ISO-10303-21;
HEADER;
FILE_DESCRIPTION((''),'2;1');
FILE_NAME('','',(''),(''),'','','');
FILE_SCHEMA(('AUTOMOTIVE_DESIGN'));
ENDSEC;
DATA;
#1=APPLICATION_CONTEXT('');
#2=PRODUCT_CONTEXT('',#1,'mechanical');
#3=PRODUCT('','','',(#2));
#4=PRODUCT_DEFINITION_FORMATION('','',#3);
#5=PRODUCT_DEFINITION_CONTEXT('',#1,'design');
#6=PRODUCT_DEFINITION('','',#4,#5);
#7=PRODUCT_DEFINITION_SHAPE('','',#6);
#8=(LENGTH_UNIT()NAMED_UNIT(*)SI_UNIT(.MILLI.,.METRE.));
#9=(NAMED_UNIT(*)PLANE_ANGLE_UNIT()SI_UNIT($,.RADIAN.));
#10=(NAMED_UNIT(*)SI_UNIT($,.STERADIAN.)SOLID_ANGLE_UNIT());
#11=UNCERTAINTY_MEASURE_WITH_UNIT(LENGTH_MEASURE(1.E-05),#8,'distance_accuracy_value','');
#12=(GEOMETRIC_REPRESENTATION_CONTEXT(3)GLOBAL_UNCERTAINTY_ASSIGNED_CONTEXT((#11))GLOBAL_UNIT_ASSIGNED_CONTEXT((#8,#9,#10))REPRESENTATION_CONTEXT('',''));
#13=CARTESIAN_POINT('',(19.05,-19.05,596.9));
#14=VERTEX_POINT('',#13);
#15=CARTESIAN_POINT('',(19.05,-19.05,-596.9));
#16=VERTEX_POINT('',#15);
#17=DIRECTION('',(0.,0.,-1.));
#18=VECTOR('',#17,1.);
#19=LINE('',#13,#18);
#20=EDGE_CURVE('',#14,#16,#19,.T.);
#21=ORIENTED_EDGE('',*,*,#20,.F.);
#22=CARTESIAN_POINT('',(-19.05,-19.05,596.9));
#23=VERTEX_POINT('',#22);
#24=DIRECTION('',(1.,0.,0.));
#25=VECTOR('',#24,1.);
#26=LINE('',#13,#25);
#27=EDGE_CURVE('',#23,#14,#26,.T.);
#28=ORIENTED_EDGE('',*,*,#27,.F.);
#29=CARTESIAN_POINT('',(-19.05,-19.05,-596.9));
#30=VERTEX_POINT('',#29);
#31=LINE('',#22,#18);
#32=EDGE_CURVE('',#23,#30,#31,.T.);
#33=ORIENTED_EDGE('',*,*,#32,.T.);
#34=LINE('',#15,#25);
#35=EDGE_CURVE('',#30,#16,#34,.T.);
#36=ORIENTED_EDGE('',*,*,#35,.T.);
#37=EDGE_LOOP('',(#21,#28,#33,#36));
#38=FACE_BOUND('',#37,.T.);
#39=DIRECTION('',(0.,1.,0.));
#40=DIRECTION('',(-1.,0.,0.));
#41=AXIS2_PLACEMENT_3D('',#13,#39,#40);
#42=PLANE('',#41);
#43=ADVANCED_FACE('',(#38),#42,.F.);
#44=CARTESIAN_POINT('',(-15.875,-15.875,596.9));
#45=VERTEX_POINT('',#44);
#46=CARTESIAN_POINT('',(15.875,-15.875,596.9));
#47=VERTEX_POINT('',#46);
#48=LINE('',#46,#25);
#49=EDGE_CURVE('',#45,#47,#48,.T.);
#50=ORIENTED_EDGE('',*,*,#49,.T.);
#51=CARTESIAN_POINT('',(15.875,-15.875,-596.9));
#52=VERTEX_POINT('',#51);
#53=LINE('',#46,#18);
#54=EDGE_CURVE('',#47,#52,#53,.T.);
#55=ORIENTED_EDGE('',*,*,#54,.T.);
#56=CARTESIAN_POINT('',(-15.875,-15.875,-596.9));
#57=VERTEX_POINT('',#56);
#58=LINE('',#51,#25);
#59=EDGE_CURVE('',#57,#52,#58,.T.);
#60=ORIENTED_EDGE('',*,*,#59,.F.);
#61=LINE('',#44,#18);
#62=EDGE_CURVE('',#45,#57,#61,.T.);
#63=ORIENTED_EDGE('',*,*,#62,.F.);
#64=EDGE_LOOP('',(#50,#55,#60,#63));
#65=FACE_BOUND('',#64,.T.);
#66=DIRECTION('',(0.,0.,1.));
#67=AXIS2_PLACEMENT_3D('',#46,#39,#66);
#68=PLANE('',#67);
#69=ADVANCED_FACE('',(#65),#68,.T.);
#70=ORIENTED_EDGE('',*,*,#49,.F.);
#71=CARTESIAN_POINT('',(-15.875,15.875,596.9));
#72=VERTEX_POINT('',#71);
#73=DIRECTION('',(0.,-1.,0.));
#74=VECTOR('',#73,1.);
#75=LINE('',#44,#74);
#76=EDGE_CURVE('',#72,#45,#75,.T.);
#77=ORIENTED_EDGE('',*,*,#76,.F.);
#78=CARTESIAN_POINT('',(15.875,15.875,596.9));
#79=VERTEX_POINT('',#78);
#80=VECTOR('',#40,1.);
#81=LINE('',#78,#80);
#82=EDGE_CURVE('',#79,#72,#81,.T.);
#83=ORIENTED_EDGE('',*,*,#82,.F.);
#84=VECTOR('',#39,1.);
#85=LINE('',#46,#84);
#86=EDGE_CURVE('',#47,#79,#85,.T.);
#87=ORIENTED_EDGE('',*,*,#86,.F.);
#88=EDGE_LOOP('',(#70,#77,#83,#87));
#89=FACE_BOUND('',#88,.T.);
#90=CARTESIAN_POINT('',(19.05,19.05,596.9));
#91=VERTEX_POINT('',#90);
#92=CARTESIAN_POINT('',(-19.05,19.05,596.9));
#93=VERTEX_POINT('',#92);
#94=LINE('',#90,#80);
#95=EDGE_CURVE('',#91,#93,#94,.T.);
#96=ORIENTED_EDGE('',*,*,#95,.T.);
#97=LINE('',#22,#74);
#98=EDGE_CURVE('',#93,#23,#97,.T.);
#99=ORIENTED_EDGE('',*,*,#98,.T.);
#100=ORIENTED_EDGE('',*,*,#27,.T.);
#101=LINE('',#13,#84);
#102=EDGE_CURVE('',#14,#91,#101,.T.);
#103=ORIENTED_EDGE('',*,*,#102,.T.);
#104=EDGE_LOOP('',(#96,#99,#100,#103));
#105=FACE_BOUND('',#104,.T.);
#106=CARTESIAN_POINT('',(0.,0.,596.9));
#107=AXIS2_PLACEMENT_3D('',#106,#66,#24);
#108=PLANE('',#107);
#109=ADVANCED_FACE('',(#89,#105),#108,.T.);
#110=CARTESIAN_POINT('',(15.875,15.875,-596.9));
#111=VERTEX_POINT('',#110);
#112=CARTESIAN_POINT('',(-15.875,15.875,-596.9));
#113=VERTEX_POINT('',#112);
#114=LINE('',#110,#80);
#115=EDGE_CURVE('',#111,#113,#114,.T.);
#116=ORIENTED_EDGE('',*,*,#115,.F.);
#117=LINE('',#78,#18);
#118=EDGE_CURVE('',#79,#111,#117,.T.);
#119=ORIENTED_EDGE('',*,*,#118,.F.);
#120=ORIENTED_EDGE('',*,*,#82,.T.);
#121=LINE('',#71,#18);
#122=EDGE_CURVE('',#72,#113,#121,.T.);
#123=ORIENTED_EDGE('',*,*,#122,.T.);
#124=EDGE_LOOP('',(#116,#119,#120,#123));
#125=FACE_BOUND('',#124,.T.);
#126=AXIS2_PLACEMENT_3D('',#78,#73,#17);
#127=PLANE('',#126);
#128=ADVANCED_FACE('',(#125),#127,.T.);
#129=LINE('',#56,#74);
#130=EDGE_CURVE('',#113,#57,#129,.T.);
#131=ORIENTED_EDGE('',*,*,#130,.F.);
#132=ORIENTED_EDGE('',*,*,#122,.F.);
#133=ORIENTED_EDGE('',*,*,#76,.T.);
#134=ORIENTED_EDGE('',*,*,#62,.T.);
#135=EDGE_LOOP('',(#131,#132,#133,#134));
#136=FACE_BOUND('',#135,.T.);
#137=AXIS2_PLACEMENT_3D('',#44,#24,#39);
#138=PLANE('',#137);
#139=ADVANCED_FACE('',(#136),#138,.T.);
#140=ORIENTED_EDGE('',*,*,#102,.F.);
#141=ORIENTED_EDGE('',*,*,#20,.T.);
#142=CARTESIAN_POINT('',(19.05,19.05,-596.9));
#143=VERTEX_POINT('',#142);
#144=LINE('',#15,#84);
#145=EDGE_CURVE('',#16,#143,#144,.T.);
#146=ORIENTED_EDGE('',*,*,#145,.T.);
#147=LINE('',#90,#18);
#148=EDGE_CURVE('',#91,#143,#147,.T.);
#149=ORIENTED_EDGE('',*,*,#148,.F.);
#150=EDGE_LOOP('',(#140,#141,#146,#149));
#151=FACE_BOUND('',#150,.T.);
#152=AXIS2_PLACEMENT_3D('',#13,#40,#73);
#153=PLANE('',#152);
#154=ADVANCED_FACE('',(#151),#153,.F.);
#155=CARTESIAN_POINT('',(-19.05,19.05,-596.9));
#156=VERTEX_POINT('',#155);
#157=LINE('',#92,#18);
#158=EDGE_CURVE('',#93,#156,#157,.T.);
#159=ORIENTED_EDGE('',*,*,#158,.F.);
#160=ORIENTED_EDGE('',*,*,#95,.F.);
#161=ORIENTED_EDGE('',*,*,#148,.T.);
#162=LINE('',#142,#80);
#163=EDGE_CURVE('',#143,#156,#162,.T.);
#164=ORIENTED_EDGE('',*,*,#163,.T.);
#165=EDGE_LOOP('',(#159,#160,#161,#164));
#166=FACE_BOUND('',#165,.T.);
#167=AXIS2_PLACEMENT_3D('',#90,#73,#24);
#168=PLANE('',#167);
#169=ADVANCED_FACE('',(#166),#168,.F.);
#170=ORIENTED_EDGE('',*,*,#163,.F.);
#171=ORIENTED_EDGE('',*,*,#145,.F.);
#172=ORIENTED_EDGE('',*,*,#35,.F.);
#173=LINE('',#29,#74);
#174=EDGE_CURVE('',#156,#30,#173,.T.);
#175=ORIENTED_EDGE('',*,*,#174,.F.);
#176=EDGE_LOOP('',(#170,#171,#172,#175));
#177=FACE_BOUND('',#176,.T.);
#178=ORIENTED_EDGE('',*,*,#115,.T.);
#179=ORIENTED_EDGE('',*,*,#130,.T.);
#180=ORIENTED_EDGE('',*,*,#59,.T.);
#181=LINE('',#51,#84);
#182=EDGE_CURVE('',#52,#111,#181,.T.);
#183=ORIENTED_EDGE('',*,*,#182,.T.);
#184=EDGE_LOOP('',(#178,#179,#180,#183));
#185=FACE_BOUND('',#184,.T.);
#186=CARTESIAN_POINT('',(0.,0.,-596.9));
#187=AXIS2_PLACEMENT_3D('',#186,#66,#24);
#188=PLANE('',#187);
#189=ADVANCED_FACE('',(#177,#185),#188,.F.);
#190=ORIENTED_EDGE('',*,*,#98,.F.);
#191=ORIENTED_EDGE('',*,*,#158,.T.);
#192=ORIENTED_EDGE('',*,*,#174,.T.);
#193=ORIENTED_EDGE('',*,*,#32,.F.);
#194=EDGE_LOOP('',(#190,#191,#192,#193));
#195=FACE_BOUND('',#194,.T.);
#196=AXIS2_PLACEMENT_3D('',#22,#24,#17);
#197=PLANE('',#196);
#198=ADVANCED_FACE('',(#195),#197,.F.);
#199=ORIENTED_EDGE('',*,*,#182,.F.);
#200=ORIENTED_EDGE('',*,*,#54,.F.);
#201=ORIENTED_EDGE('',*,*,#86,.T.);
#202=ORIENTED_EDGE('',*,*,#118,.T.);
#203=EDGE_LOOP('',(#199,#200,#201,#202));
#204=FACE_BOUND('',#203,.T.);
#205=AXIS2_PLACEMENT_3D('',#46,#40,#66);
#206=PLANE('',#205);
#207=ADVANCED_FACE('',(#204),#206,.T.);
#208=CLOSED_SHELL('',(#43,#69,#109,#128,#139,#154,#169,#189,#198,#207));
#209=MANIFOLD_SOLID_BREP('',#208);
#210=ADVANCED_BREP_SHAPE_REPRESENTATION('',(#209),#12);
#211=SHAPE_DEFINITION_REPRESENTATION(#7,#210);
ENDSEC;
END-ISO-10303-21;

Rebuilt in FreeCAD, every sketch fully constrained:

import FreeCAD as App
import Part
import Sketcher

V = App.Vector
Q = App.Units.Quantity

doc = App.newDocument("Part")
body = doc.addObject("PartDesign::Body", "Body")

sketch1 = doc.addObject("Sketcher::SketchObject", "Sketch")
body.addObject(sketch1)
sketch1.AttachmentSupport = (doc.XY_Plane, [""])
sketch1.MapMode = "FlatFace"
sketch1.addGeometry([
    Part.LineSegment(V(-19, 19, 0), V(-19, -19, 0)),
    Part.LineSegment(V(-19, -19, 0), V(19, -19, 0)),
    Part.LineSegment(V(19, -19, 0), V(19, 19, 0)),
    Part.LineSegment(V(19, 19, 0), V(-19, 19, 0)),
    Part.LineSegment(V(16, -16, 0), V(-16, -16, 0)),
    Part.LineSegment(V(-16, -16, 0), V(-16, 16, 0)),
    Part.LineSegment(V(-16, 16, 0), V(16, 16, 0)),
    Part.LineSegment(V(16, 16, 0), V(16, -16, 0)),
], False)
sketch1.addConstraint([
    Sketcher.Constraint("Coincident", 0, 2, 1, 1),
    Sketcher.Constraint("Coincident", 1, 2, 2, 1),
    Sketcher.Constraint("Coincident", 2, 2, 3, 1),
    Sketcher.Constraint("Coincident", 3, 2, 0, 1),
    Sketcher.Constraint("Coincident", 4, 2, 5, 1),
    Sketcher.Constraint("Coincident", 5, 2, 6, 1),
    Sketcher.Constraint("Coincident", 6, 2, 7, 1),
    Sketcher.Constraint("Coincident", 7, 2, 4, 1),
    Sketcher.Constraint("Vertical", 0),
    Sketcher.Constraint("Horizontal", 1),
    Sketcher.Constraint("Vertical", 2),
    Sketcher.Constraint("Horizontal", 3),
    Sketcher.Constraint("Horizontal", 4),
    Sketcher.Constraint("Vertical", 5),
    Sketcher.Constraint("Horizontal", 6),
    Sketcher.Constraint("Vertical", 7),
    Sketcher.Constraint("Symmetric", 0, 2, 2, 2, -1, 1),
    Sketcher.Constraint("Symmetric", 4, 2, 6, 2, -1, 1),
    Sketcher.Constraint("Equal", 3, 0),
    Sketcher.Constraint("Equal", 6, 5),
    Sketcher.Constraint("DistanceX", 1, 1, 1, 2, Q("1.5 in")),
    Sketcher.Constraint("DistanceX", 4, 2, 4, 1, Q("1.25 in")),
])
pad1 = doc.addObject("PartDesign::Pad", "Pad")
body.addObject(pad1)
pad1.Profile = sketch1
pad1.Type = "TwoLengths"
pad1.Length = Q("23.5 in")
pad1.Length2 = Q("23.5 in")

doc.recompute()
